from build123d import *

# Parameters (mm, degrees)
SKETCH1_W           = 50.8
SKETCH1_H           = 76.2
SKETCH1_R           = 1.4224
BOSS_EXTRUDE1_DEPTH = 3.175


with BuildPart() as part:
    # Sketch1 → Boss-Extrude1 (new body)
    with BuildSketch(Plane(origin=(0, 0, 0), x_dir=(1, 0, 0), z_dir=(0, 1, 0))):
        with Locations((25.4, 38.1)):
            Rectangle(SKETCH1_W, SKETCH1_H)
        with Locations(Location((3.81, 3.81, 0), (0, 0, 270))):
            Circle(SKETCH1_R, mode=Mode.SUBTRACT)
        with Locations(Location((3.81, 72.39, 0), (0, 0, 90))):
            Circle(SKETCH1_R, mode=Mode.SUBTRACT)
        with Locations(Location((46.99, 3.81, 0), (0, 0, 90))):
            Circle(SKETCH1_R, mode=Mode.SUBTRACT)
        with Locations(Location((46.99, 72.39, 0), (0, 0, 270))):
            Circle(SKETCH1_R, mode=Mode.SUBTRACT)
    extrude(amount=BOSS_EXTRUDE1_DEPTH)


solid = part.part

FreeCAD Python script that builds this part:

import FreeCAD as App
import Part
import Sketcher
Q = App.Units.Quantity


def add_polygon(sketch, points):
    """Adds a closed chain of lines whose ends are joined by coincident constraints."""
    first, n = sketch.GeometryCount, len(points)
    for a, b in zip(points, points[1:] + points[:1]):
        sketch.addGeometry(Part.LineSegment(App.Vector(*a, 0), App.Vector(*b, 0)), False)
    for i in range(n):
        sketch.addConstraint(Sketcher.Constraint("Coincident", first + i, 2, first + (i + 1) % n, 1))

doc = App.newDocument("Part")
body = doc.addObject("PartDesign::Body", "Body")

# Sketch on XZ plane
sketch1 = body.newObject("Sketcher::SketchObject", "Sketch")
sketch1.AttachmentSupport = (doc.getObject("XZ_Plane"), [""])
sketch1.MapMode = "FlatFace"
add_polygon(sketch1, [(0, -76.2), (0, 0), (50.8, 0), (50.8, -76.2)])  # lines 0-3
sketch1.addGeometry(Part.Circle(App.Vector(3.81, -3.81, 0), App.Vector(0, 0, 1), 1.4224), False)  # 4
sketch1.addGeometry(Part.Circle(App.Vector(46.99, -3.81, 0), App.Vector(0, 0, 1), 1.4224), False)  # 5
sketch1.addGeometry(Part.Circle(App.Vector(3.81, -72.39, 0), App.Vector(0, 0, 1), 1.4224), False)  # 6
sketch1.addGeometry(Part.Circle(App.Vector(46.99, -72.39, 0), App.Vector(0, 0, 1), 1.4224), False)  # 7
sketch1.addConstraint(Sketcher.Constraint("Vertical", 0))
sketch1.addConstraint(Sketcher.Constraint("Horizontal", 1))
sketch1.addConstraint(Sketcher.Constraint("Vertical", 2))
sketch1.addConstraint(Sketcher.Constraint("Horizontal", 3))
sketch1.addConstraint(Sketcher.Constraint("Coincident", 0, 2, -1, 1))
sketch1.addConstraint(Sketcher.Constraint("Equal", 4, 5))
sketch1.addConstraint(Sketcher.Constraint("Equal", 5, 6))
sketch1.addConstraint(Sketcher.Constraint("Equal", 6, 7))
sketch1.addConstraint(Sketcher.Constraint("Horizontal", 4, 3, 5, 3))
sketch1.addConstraint(Sketcher.Constraint("Horizontal", 6, 3, 7, 3))
sketch1.addConstraint(Sketcher.Constraint("Vertical", 4, 3, 6, 3))
sketch1.addConstraint(Sketcher.Constraint("Vertical", 5, 3, 7, 3))
sketch1.addConstraint(Sketcher.Constraint("DistanceX", 1, 1, 1, 2, Q("2 in")))
sketch1.addConstraint(Sketcher.Constraint("DistanceY", 0, 1, 0, 2, Q("3 in")))
sketch1.addConstraint(Sketcher.Constraint("Diameter", 4, Q("0.112 in")))
sketch1.addConstraint(Sketcher.Constraint("DistanceX", 4, 3, 5, 3, Q("1.7 in")))
sketch1.addConstraint(Sketcher.Constraint("DistanceY", 6, 3, 4, 3, Q("2.7 in")))
sketch1.addConstraint(Sketcher.Constraint("DistanceX", -1, 1, 4, 3, Q("0.15 in")))
sketch1.addConstraint(Sketcher.Constraint("DistanceY", 4, 3, -1, 1, Q("0.15 in")))
pad1 = body.newObject("PartDesign::Pad", "Pad")
pad1.Profile = sketch1
pad1.Length = Q("0.125 in")
pad1.Reversed = True

doc.recompute()
